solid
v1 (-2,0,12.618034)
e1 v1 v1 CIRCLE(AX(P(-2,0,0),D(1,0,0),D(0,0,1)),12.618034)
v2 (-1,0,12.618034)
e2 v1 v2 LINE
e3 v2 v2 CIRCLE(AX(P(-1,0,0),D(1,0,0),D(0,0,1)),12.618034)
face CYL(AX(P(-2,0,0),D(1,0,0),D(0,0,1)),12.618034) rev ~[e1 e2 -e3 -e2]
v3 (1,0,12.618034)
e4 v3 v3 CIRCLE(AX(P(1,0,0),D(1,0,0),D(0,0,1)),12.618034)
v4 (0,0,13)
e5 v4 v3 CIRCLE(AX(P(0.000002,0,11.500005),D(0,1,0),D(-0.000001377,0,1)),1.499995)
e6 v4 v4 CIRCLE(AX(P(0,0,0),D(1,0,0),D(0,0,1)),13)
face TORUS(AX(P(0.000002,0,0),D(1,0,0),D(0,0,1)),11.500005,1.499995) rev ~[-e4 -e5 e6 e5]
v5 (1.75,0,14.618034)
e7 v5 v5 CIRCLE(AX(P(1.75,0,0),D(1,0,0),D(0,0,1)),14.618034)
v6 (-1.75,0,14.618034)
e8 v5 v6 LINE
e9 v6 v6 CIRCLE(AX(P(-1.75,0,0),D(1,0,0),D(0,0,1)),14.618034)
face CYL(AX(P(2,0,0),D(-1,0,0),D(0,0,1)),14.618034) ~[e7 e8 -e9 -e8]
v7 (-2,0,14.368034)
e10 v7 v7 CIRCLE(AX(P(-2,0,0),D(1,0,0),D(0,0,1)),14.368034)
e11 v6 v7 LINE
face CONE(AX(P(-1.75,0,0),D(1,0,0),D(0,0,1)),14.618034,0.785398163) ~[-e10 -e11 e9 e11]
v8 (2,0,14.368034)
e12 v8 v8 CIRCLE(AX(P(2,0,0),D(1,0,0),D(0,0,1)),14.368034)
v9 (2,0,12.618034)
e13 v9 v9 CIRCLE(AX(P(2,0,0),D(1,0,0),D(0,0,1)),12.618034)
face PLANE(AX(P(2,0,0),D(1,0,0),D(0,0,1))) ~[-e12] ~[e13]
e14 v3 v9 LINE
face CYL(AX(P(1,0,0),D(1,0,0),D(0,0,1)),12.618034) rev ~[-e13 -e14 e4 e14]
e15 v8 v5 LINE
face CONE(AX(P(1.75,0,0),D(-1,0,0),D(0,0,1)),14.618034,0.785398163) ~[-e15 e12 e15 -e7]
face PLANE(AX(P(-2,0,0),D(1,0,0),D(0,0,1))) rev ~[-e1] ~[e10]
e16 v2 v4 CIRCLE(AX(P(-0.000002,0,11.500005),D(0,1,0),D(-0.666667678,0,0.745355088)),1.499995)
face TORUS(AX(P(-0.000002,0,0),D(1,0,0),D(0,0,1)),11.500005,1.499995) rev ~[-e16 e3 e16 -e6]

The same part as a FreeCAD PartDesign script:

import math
import FreeCAD as App
import Part
import Sketcher
from FreeCAD import Vector
Q = App.Units.Quantity


def edges_at(feature, points):
    """Names of the edges that pass closest to the given points."""
    edges = feature.Shape.Edges
    near = lambda p: min(range(len(edges)), key=lambda i: edges[i].distToShape(Part.Vertex(*p))[0])
    return sorted({f"Edge{near(p) + 1}" for p in points})

doc = App.newDocument("Part")
body = doc.addObject("PartDesign::Body", "Body")

# Sketch on XZ plane
sketch1 = body.newObject("Sketcher::SketchObject", "Sketch")
sketch1.AttachmentSupport = (doc.getObject("XZ_Plane"), [""])
sketch1.MapMode = "FlatFace"
sketch1.addGeometry(Part.ArcOfCircle(Part.Circle(Vector(0.000002, 11.500005, 0), Vector(0, 0, 1), 1.499995), math.radians(48.189607), math.radians(90.000079)), False)
sketch1.addGeometry(Part.LineSegment(Vector(1, 12.618034, 0), Vector(2, 12.618034, 0)), False)
sketch1.addGeometry(Part.LineSegment(Vector(2, 12.618034, 0), Vector(2, 14.618034, 0)), False)
sketch1.addGeometry(Part.LineSegment(Vector(2, 14.618034, 0), Vector(-2, 14.618034, 0)), False)
sketch1.addGeometry(Part.LineSegment(Vector(-2, 14.618034, 0), Vector(-2, 12.618034, 0)), False)
sketch1.addGeometry(Part.LineSegment(Vector(-2, 12.618034, 0), Vector(-1, 12.618034, 0)), False)
sketch1.addGeometry(Part.ArcOfCircle(Part.Circle(Vector(-0.000002, 11.500005, 0), Vector(0, 0, 1), 1.499995), math.radians(89.999921), math.radians(131.810393)), False)
sketch1.addConstraint(Sketcher.Constraint("Coincident", 0, 1, 1, 1))
sketch1.addConstraint(Sketcher.Constraint("Coincident", 1, 2, 2, 1))
sketch1.addConstraint(Sketcher.Constraint("Coincident", 2, 2, 3, 1))
sketch1.addConstraint(Sketcher.Constraint("Coincident", 3, 2, 4, 1))
sketch1.addConstraint(Sketcher.Constraint("Coincident", 4, 2, 5, 1))
sketch1.addConstraint(Sketcher.Constraint("Coincident", 5, 2, 6, 2))
sketch1.addConstraint(Sketcher.Constraint("Coincident", 6, 1, 0, 2))
sketch1.addConstraint(Sketcher.Constraint("Horizontal", 1))
sketch1.addConstraint(Sketcher.Constraint("Vertical", 2))
sketch1.addConstraint(Sketcher.Constraint("Horizontal", 3))
sketch1.addConstraint(Sketcher.Constraint("Vertical", 4))
sketch1.addConstraint(Sketcher.Constraint("Horizontal", 5))
sketch1.addConstraint(Sketcher.Constraint("Coincident", 6, 3, 0, 3))
sketch1.addConstraint(Sketcher.Constraint("Symmetric", 1, 2, 4, 2, -2))
sketch1.addConstraint(Sketcher.Constraint("PointOnObject", 6, 1, -2))
sketch1.addConstraint(Sketcher.Constraint("Equal", 1, 5))
sketch1.addConstraint(Sketcher.Constraint("DistanceX", 1, 1, 1, 2, Q("1 mm")))
sketch1.addConstraint(Sketcher.Constraint("DistanceX", 3, 2, 3, 1, Q("4 mm")))
sketch1.addConstraint(Sketcher.Constraint("DistanceY", 2, 1, 2, 2, Q("2 mm")))
sketch1.addConstraint(Sketcher.Constraint("DistanceY", -1, 1, 6, 1, Q("13 mm")))
sketch1.addConstraint(Sketcher.Constraint("Radius", 0, Q("1.499995 mm")))
revolution = body.newObject("PartDesign::Revolution", "Revolution")
revolution.Profile = sketch1
revolution.ReferenceAxis = (sketch1, ["H_Axis"])
revolution.Angle = 360
doc.recompute()

chamfer = body.newObject("PartDesign::Chamfer", "Chamfer")
chamfer.Base = (revolution, edges_at(revolution, [(2, 0, -14.618), (-2, 0, -14.618)]))
chamfer.Size = 0.25

doc.recompute()
